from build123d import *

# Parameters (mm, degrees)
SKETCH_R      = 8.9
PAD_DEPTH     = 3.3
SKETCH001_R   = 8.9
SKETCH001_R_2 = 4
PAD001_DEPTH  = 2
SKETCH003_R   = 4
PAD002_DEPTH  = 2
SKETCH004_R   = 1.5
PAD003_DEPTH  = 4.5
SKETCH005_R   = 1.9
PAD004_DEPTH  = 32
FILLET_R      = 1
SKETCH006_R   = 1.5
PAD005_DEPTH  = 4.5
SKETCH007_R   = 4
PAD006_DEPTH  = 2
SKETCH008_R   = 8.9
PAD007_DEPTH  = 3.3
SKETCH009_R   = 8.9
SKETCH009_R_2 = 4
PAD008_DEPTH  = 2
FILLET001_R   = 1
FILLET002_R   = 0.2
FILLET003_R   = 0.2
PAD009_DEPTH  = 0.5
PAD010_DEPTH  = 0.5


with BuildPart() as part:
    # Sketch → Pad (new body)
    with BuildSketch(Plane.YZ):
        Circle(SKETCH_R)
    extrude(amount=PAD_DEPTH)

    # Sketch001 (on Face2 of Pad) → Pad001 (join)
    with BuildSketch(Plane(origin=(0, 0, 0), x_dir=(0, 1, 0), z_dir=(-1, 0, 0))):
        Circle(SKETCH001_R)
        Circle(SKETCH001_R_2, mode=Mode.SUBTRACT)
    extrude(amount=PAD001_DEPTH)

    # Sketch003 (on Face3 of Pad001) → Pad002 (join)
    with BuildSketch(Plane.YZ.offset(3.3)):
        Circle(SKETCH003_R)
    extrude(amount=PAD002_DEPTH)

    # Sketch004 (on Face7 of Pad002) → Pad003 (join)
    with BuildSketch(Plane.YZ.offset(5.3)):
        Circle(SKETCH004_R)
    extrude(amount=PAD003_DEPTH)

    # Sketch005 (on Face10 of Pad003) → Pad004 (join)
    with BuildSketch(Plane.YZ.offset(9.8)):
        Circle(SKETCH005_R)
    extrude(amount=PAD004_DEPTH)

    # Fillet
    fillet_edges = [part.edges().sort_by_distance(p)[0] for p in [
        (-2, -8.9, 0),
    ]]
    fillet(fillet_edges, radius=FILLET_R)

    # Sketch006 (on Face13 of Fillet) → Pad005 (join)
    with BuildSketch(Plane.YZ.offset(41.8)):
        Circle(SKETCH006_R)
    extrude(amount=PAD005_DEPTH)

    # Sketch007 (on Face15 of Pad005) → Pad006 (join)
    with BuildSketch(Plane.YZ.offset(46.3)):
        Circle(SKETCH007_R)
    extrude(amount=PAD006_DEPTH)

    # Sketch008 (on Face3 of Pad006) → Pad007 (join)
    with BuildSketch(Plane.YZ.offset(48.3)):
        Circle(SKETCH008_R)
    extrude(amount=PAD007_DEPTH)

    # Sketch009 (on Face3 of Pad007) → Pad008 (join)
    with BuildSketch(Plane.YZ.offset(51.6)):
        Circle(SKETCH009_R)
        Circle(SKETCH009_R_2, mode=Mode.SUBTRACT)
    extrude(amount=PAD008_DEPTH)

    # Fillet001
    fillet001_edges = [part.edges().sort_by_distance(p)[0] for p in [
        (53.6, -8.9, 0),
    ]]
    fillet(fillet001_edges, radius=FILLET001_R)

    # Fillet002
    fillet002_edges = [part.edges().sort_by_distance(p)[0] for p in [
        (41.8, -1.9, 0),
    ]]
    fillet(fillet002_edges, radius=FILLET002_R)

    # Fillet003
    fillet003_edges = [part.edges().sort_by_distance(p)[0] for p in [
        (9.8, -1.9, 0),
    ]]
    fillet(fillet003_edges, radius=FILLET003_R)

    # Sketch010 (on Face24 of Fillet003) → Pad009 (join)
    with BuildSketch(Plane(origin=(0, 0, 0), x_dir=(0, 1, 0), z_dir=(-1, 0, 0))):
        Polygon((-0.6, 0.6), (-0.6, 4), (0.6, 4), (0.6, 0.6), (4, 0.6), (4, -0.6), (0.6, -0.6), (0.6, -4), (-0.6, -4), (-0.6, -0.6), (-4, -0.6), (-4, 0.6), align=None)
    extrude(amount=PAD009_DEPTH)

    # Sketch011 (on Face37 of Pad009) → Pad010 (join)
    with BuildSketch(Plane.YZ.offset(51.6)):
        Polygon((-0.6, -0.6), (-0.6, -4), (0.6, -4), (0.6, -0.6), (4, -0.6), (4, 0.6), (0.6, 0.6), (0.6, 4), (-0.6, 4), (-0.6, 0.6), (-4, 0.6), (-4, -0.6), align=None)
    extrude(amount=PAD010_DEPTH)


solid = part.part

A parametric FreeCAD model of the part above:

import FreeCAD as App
import Part
import Sketcher

V = App.Vector


def edges_at(feature, points):
    """Names of the edges that pass closest to the given points."""
    edges = feature.Shape.Edges
    near = lambda p: min(range(len(edges)), key=lambda i: edges[i].distToShape(Part.Vertex(*p))[0])
    return sorted({f"Edge{near(p) + 1}" for p in points})

doc = App.newDocument("Part")
params = doc.addObject("Spreadsheet::Sheet", "Params")
for row, (alias, value) in enumerate([
    ("sketch1_diameter", "17.8 mm"),
    ("pad1_length", "3.3 mm"),
    ("sketch2_diameter", "8 mm"),
    ("sketch2_diameter2", "17.8 mm"),
    ("pad2_length", "2 mm"),
    ("sketch3_diameter", "8 mm"),
    ("pad3_length", "2 mm"),
    ("sketch4_diameter", "3 mm"),
    ("pad4_length", "4.5 mm"),
    ("sketch5_diameter", "3.8 mm"),
    ("pad5_length", "32 mm"),
    ("fillet_radius", "1 mm"),
    ("sketch6_diameter", "3 mm"),
    ("pad6_length", "4.5 mm"),
    ("sketch7_diameter", "8 mm"),
    ("pad7_length", "2 mm"),
    ("sketch8_diameter", "17.8 mm"),
    ("pad8_length", "3.3 mm"),
    ("sketch9_diameter", "8 mm"),
    ("sketch9_diameter2", "17.8 mm"),
    ("pad9_length", "2 mm"),
    ("fillet2_radius", "1 mm"),
    ("fillet3_radius", "0.2 mm"),
    ("fillet4_radius", "0.2 mm"),
    ("sketch10_width", "3.4 mm"),
    ("sketch10_width2", "1.2 mm"),
    ("pad10_length", "0.5 mm"),
    ("sketch11_width", "1.2 mm"),
    ("sketch11_width2", "3.4 mm"),
    ("pad11_length", "0.5 mm"),
], start=1):
    params.set(f"A{row}", alias)
    params.set(f"B{row}", "=" + value)
    params.setAlias(f"B{row}", alias)

body = doc.addObject("PartDesign::Body", "Body")

# Sketch on YZ plane
sketch1 = body.newObject("Sketcher::SketchObject", "Sketch")
sketch1.AttachmentSupport = (doc.getObject("YZ_Plane"), [""])
sketch1.MapMode = "FlatFace"
sketch1.addGeometry(Part.Circle(V(0, 0, 0), V(0, 0, 1), 9), False)
sketch1.addConstraint(Sketcher.Constraint("Coincident", 0, 3, -1, 1))
sketch1.addConstraint(Sketcher.Constraint("Diameter", 0, 17.8))
sketch1.setExpression("Constraints[1]", "Params.sketch1_diameter")
pad1 = body.newObject("PartDesign::Pad", "Pad")
pad1.Profile = sketch1
pad1.setExpression("Length", "Params.pad1_length")

# Sketch on YZ plane
sketch2 = body.newObject("Sketcher::SketchObject", "Sketch001")
sketch2.AttachmentSupport = (doc.getObject("YZ_Plane"), [""])
sketch2.MapMode = "FlatFace"
sketch2.addGeometry(Part.Circle(V(0, 0, 0), V(0, 0, 1), 8.9), False)
sketch2.addGeometry(Part.Circle(V(0, 0, 0), V(0, 0, 1), 4), False)
sketch2.addConstraint(Sketcher.Constraint("Coincident", 0, 3, -1, 1))
sketch2.addConstraint(Sketcher.Constraint("Coincident", 1, 3, -1, 1))
sketch2.addConstraint(Sketcher.Constraint("Diameter", 1, 8.0))
sketch2.addConstraint(Sketcher.Constraint("Diameter", 0, 17.8))
sketch2.setExpression("Constraints[2]", "Params.sketch2_diameter")
sketch2.setExpression("Constraints[3]", "Params.sketch2_diameter2")
pad2 = body.newObject("PartDesign::Pad", "Pad001")
pad2.Profile = sketch2
pad2.setExpression("Length", "Params.pad2_length")
pad2.Reversed = True

# Sketch on YZ plane
sketch3 = body.newObject("Sketcher::SketchObject", "Sketch002")
sketch3.AttachmentSupport = (doc.getObject("YZ_Plane"), [""])
sketch3.MapMode = "FlatFace"
sketch3.AttachmentOffset = App.Placement(V(0, 0, 3.3), App.Rotation())
sketch3.addGeometry(Part.Circle(V(0, 0, 0), V(0, 0, 1), 4), False)
sketch3.addConstraint(Sketcher.Constraint("Coincident", 0, 3, -1, 1))
sketch3.addConstraint(Sketcher.Constraint("Diameter", 0, 8.0))
sketch3.setExpression("Constraints[1]", "Params.sketch3_diameter")
pad3 = body.newObject("PartDesign::Pad", "Pad002")
pad3.Profile = sketch3
pad3.setExpression("Length", "Params.pad3_length")

# Sketch on YZ plane
sketch4 = body.newObject("Sketcher::SketchObject", "Sketch003")
sketch4.AttachmentSupport = (doc.getObject("YZ_Plane"), [""])
sketch4.MapMode = "FlatFace"
sketch4.AttachmentOffset = App.Placement(V(0, 0, 5.3), App.Rotation())
sketch4.addGeometry(Part.Circle(V(0, 0, 0), V(0, 0, 1), 1.5), False)
sketch4.addConstraint(Sketcher.Constraint("Coincident", 0, 3, -1, 1))
sketch4.addConstraint(Sketcher.Constraint("Diameter", 0, 3.0))
sketch4.setExpression("Constraints[1]", "Params.sketch4_diameter")
pad4 = body.newObject("PartDesign::Pad", "Pad003")
pad4.Profile = sketch4
pad4.setExpression("Length", "Params.pad4_length")

# Sketch on YZ plane
sketch5 = body.newObject("Sketcher::SketchObject", "Sketch004")
sketch5.AttachmentSupport = (doc.getObject("YZ_Plane"), [""])
sketch5.MapMode = "FlatFace"
sketch5.AttachmentOffset = App.Placement(V(0, 0, 9.8), App.Rotation())
sketch5.addGeometry(Part.Circle(V(0, 0, 0), V(0, 0, 1), 1.9), False)
sketch5.addConstraint(Sketcher.Constraint("Coincident", 0, 3, -1, 1))
sketch5.addConstraint(Sketcher.Constraint("Diameter", 0, 3.8))
sketch5.setExpression("Constraints[1]", "Params.sketch5_diameter")
pad5 = body.newObject("PartDesign::Pad", "Pad004")
pad5.Profile = sketch5
pad5.setExpression("Length", "Params.pad5_length")
doc.recompute()

fillet = body.newObject("PartDesign::Fillet", "Fillet")
fillet.Base = (pad5, edges_at(pad5, [(-2, -8.9, 0)]))
fillet.setExpression("Radius", "Params.fillet_radius")

# Sketch on YZ plane
sketch6 = body.newObject("Sketcher::SketchObject", "Sketch005")
sketch6.AttachmentSupport = (doc.getObject("YZ_Plane"), [""])
sketch6.MapMode = "FlatFace"
sketch6.AttachmentOffset = App.Placement(V(0, 0, 41.8), App.Rotation())
sketch6.addGeometry(Part.Circle(V(0, 0, 0), V(0, 0, 1), 1.5), False)
sketch6.addConstraint(Sketcher.Constraint("Coincident", 0, 3, -1, 1))
sketch6.addConstraint(Sketcher.Constraint("Diameter", 0, 3.0))
sketch6.setExpression("Constraints[1]", "Params.sketch6_diameter")
pad6 = body.newObject("PartDesign::Pad", "Pad005")
pad6.Profile = sketch6
pad6.setExpression("Length", "Params.pad6_length")

# Sketch on YZ plane
sketch7 = body.newObject("Sketcher::SketchObject", "Sketch006")
sketch7.AttachmentSupport = (doc.getObject("YZ_Plane"), [""])
sketch7.MapMode = "FlatFace"
sketch7.AttachmentOffset = App.Placement(V(0, 0, 46.3), App.Rotation())
sketch7.addGeometry(Part.Circle(V(0, 0, 0), V(0, 0, 1), 4), False)
sketch7.addConstraint(Sketcher.Constraint("Coincident", 0, 3, -1, 1))
sketch7.addConstraint(Sketcher.Constraint("Diameter", 0, 8.0))
sketch7.setExpression("Constraints[1]", "Params.sketch7_diameter")
pad7 = body.newObject("PartDesign::Pad", "Pad006")
pad7.Profile = sketch7
pad7.setExpression("Length", "Params.pad7_length")

# Sketch on YZ plane
sketch8 = body.newObject("Sketcher::SketchObject", "Sketch007")
sketch8.AttachmentSupport = (doc.getObject("YZ_Plane"), [""])
sketch8.MapMode = "FlatFace"
sketch8.AttachmentOffset = App.Placement(V(0, 0, 48.3), App.Rotation())
sketch8.addGeometry(Part.Circle(V(0, 0, 0), V(0, 0, 1), 9), False)
sketch8.addConstraint(Sketcher.Constraint("Coincident", 0, 3, -1, 1))
sketch8.addConstraint(Sketcher.Constraint("Diameter", 0, 17.8))
sketch8.setExpression("Constraints[1]", "Params.sketch8_diameter")
pad8 = body.newObject("PartDesign::Pad", "Pad007")
pad8.Profile = sketch8
pad8.setExpression("Length", "Params.pad8_length")

# Sketch on YZ plane
sketch9 = body.newObject("Sketcher::SketchObject", "Sketch008")
sketch9.AttachmentSupport = (doc.getObject("YZ_Plane"), [""])
sketch9.MapMode = "FlatFace"
sketch9.AttachmentOffset = App.Placement(V(0, 0, 51.6), App.Rotation())
sketch9.addGeometry(Part.Circle(V(0, 0, 0), V(0, 0, 1), 8.9), False)
sketch9.addGeometry(Part.Circle(V(0, 0, 0), V(0, 0, 1), 4), False)
sketch9.addConstraint(Sketcher.Constraint("Coincident", 0, 3, -1, 1))
sketch9.addConstraint(Sketcher.Constraint("Coincident", 1, 3, -1, 1))
sketch9.addConstraint(Sketcher.Constraint("Diameter", 1, 8.0))
sketch9.addConstraint(Sketcher.Constraint("Diameter", 0, 17.8))
sketch9.setExpression("Constraints[2]", "Params.sketch9_diameter")
sketch9.setExpression("Constraints[3]", "Params.sketch9_diameter2")
pad9 = body.newObject("PartDesign::Pad", "Pad008")
pad9.Profile = sketch9
pad9.setExpression("Length", "Params.pad9_length")
doc.recompute()

fillet2 = body.newObject("PartDesign::Fillet", "Fillet001")
fillet2.Base = (pad9, edges_at(pad9, [(53.6, -8.9, 0)]))
fillet2.setExpression("Radius", "Params.fillet2_radius")
doc.recompute()

fillet3 = body.newObject("PartDesign::Fillet", "Fillet002")
fillet3.Base = (fillet2, edges_at(fillet2, [(41.8, -1.9, 0)]))
fillet3.setExpression("Radius", "Params.fillet3_radius")
doc.recompute()

fillet4 = body.newObject("PartDesign::Fillet", "Fillet003")
fillet4.Base = (fillet3, edges_at(fillet3, [(9.8, -1.9, 0)]))
fillet4.setExpression("Radius", "Params.fillet4_radius")

# Sketch on YZ plane
sketch10 = body.newObject("Sketcher::SketchObject", "Sketch009")
sketch10.AttachmentSupport = (doc.getObject("YZ_Plane"), [""])
sketch10.MapMode = "FlatFace"
sketch10.addGeometry(Part.LineSegment(V(-0.6, -4, 0), V(-0.6, -0.6, 0)), False)
sketch10.addGeometry(Part.LineSegment(V(-0.6, -0.6, 0), V(-4, -0.6, 0)), False)
sketch10.addGeometry(Part.LineSegment(V(-4, -0.6, 0), V(-4, 0.6, 0)), False)
sketch10.addGeometry(Part.LineSegment(V(-4, 0.6, 0), V(-0.6, 0.6, 0)), False)
sketch10.addGeometry(Part.LineSegment(V(-0.6, 0.6, 0), V(-0.6, 4, 0)), False)
sketch10.addGeometry(Part.LineSegment(V(-0.6, 4, 0), V(0.6, 4, 0)), False)
sketch10.addGeometry(Part.LineSegment(V(0.6, 4, 0), V(0.6, 0.6, 0)), False)
sketch10.addGeometry(Part.LineSegment(V(0.6, 0.6, 0), V(4, 0.6, 0)), False)
sketch10.addGeometry(Part.LineSegment(V(4, 0.6, 0), V(4, -0.6, 0)), False)
sketch10.addGeometry(Part.LineSegment(V(4, -0.6, 0), V(0.6, -0.6, 0)), False)
sketch10.addGeometry(Part.LineSegment(V(0.6, -0.6, 0), V(0.6, -4, 0)), False)
sketch10.addGeometry(Part.LineSegment(V(0.6, -4, 0), V(-0.6, -4, 0)), False)
sketch10.addConstraint(Sketcher.Constraint("Coincident", 0, 2, 1, 1))
sketch10.addConstraint(Sketcher.Constraint("Coincident", 1, 2, 2, 1))
sketch10.addConstraint(Sketcher.Constraint("Coincident", 2, 2, 3, 1))
sketch10.addConstraint(Sketcher.Constraint("Coincident", 3, 2, 4, 1))
sketch10.addConstraint(Sketcher.Constraint("Coincident", 4, 2, 5, 1))
sketch10.addConstraint(Sketcher.Constraint("Coincident", 5, 2, 6, 1))
sketch10.addConstraint(Sketcher.Constraint("Coincident", 6, 2, 7, 1))
sketch10.addConstraint(Sketcher.Constraint("Coincident", 7, 2, 8, 1))
sketch10.addConstraint(Sketcher.Constraint("Coincident", 8, 2, 9, 1))
sketch10.addConstraint(Sketcher.Constraint("Coincident", 9, 2, 10, 1))
sketch10.addConstraint(Sketcher.Constraint("Coincident", 10, 2, 11, 1))
sketch10.addConstraint(Sketcher.Constraint("Coincident", 11, 2, 0, 1))
sketch10.addConstraint(Sketcher.Constraint("Vertical", 0))
sketch10.addConstraint(Sketcher.Constraint("Horizontal", 1))
sketch10.addConstraint(Sketcher.Constraint("Vertical", 2))
sketch10.addConstraint(Sketcher.Constraint("Horizontal", 3))
sketch10.addConstraint(Sketcher.Constraint("Vertical", 4))
sketch10.addConstraint(Sketcher.Constraint("Horizontal", 5))
sketch10.addConstraint(Sketcher.Constraint("Vertical", 6))
sketch10.addConstraint(Sketcher.Constraint("Horizontal", 7))
sketch10.addConstraint(Sketcher.Constraint("Vertical", 8))
sketch10.addConstraint(Sketcher.Constraint("Horizontal", 9))
sketch10.addConstraint(Sketcher.Constraint("Vertical", 10))
sketch10.addConstraint(Sketcher.Constraint("Horizontal", 11))
sketch10.addConstraint(Sketcher.Constraint("Symmetric", 0, 2, 6, 2, -1, 1))
sketch10.addConstraint(Sketcher.Constraint("Symmetric", 2, 2, 8, 2, -1, 1))
sketch10.addConstraint(Sketcher.Constraint("Symmetric", 4, 2, 10, 2, -1, 1))
sketch10.addConstraint(Sketcher.Constraint("Symmetric", 3, 2, 6, 2, -2))
sketch10.addConstraint(Sketcher.Constraint("Equal", 9, 0))
sketch10.addConstraint(Sketcher.Constraint("Equal", 11, 2))
sketch10.addConstraint(Sketcher.Constraint("DistanceX", 1, 2, 1, 1, 3.4))
sketch10.addConstraint(Sketcher.Constraint("DistanceX", 5, 1, 5, 2, 1.2))
sketch10.setExpression("Constraints[30]", "Params.sketch10_width")
sketch10.setExpression("Constraints[31]", "Params.sketch10_width2")
pad10 = body.newObject("PartDesign::Pad", "Pad009")
pad10.Profile = sketch10
pad10.setExpression("Length", "Params.pad10_length")
pad10.Reversed = True

# Sketch on YZ plane
sketch11 = body.newObject("Sketcher::SketchObject", "Sketch010")
sketch11.AttachmentSupport = (doc.getObject("YZ_Plane"), [""])
sketch11.MapMode = "FlatFace"
sketch11.AttachmentOffset = App.Placement(V(0, 0, 51.6), App.Rotation())
sketch11.addGeometry(Part.LineSegment(V(-0.6, -0.6, 0), V(-0.6, -4, 0)), False)
sketch11.addGeometry(Part.LineSegment(V(-0.6, -4, 0), V(0.6, -4, 0)), False)
sketch11.addGeometry(Part.LineSegment(V(0.6, -4, 0), V(0.6, -0.6, 0)), False)
sketch11.addGeometry(Part.LineSegment(V(0.6, -0.6, 0), V(4, -0.6, 0)), False)
sketch11.addGeometry(Part.LineSegment(V(4, -0.6, 0), V(4, 0.6, 0)), False)
sketch11.addGeometry(Part.LineSegment(V(4, 0.6, 0), V(0.6, 0.6, 0)), False)
sketch11.addGeometry(Part.LineSegment(V(0.6, 0.6, 0), V(0.6, 4, 0)), False)
sketch11.addGeometry(Part.LineSegment(V(0.6, 4, 0), V(-0.6, 4, 0)), False)
sketch11.addGeometry(Part.LineSegment(V(-0.6, 4, 0), V(-0.6, 0.6, 0)), False)
sketch11.addGeometry(Part.LineSegment(V(-0.6, 0.6, 0), V(-4, 0.6, 0)), False)
sketch11.addGeometry(Part.LineSegment(V(-4, 0.6, 0), V(-4, -0.6, 0)), False)
sketch11.addGeometry(Part.LineSegment(V(-4, -0.6, 0), V(-0.6, -0.6, 0)), False)
sketch11.addConstraint(Sketcher.Constraint("Coincident", 0, 2, 1, 1))
sketch11.addConstraint(Sketcher.Constraint("Coincident", 1, 2, 2, 1))
sketch11.addConstraint(Sketcher.Constraint("Coincident", 2, 2, 3, 1))
sketch11.addConstraint(Sketcher.Constraint("Coincident", 3, 2, 4, 1))
sketch11.addConstraint(Sketcher.Constraint("Coincident", 4, 2, 5, 1))
sketch11.addConstraint(Sketcher.Constraint("Coincident", 5, 2, 6, 1))
sketch11.addConstraint(Sketcher.Constraint("Coincident", 6, 2, 7, 1))
sketch11.addConstraint(Sketcher.Constraint("Coincident", 7, 2, 8, 1))
sketch11.addConstraint(Sketcher.Constraint("Coincident", 8, 2, 9, 1))
sketch11.addConstraint(Sketcher.Constraint("Coincident", 9, 2, 10, 1))
sketch11.addConstraint(Sketcher.Constraint("Coincident", 10, 2, 11, 1))
sketch11.addConstraint(Sketcher.Constraint("Coincident", 11, 2, 0, 1))
sketch11.addConstraint(Sketcher.Constraint("Vertical", 0))
sketch11.addConstraint(Sketcher.Constraint("Horizontal", 1))
sketch11.addConstraint(Sketcher.Constraint("Vertical", 2))
sketch11.addConstraint(Sketcher.Constraint("Horizontal", 3))
sketch11.addConstraint(Sketcher.Constraint("Vertical", 4))
sketch11.addConstraint(Sketcher.Constraint("Horizontal", 5))
sketch11.addConstraint(Sketcher.Constraint("Vertical", 6))
sketch11.addConstraint(Sketcher.Constraint("Horizontal", 7))
sketch11.addConstraint(Sketcher.Constraint("Vertical", 8))
sketch11.addConstraint(Sketcher.Constraint("Horizontal", 9))
sketch11.addConstraint(Sketcher.Constraint("Vertical", 10))
sketch11.addConstraint(Sketcher.Constraint("Horizontal", 11))
sketch11.addConstraint(Sketcher.Constraint("Symmetric", 0, 2, 6, 2, -1, 1))
sketch11.addConstraint(Sketcher.Constraint("Symmetric", 2, 2, 8, 2, -1, 1))
sketch11.addConstraint(Sketcher.Constraint("Symmetric", 4, 2, 10, 2, -1, 1))
sketch11.addConstraint(Sketcher.Constraint("Symmetric", 5, 2, 8, 2, -2))
sketch11.addConstraint(Sketcher.Constraint("Equal", 11, 0))
sketch11.addConstraint(Sketcher.Constraint("Equal", 7, 4))
sketch11.addConstraint(Sketcher.Constraint("DistanceX", 1, 1, 1, 2, 1.2))
sketch11.addConstraint(Sketcher.Constraint("DistanceX", 3, 1, 3, 2, 3.4))
sketch11.setExpression("Constraints[30]", "Params.sketch11_width")
sketch11.setExpression("Constraints[31]", "Params.sketch11_width2")
pad11 = body.newObject("PartDesign::Pad", "Pad010")
pad11.Profile = sketch11
pad11.setExpression("Length", "Params.pad11_length")

doc.recompute()
